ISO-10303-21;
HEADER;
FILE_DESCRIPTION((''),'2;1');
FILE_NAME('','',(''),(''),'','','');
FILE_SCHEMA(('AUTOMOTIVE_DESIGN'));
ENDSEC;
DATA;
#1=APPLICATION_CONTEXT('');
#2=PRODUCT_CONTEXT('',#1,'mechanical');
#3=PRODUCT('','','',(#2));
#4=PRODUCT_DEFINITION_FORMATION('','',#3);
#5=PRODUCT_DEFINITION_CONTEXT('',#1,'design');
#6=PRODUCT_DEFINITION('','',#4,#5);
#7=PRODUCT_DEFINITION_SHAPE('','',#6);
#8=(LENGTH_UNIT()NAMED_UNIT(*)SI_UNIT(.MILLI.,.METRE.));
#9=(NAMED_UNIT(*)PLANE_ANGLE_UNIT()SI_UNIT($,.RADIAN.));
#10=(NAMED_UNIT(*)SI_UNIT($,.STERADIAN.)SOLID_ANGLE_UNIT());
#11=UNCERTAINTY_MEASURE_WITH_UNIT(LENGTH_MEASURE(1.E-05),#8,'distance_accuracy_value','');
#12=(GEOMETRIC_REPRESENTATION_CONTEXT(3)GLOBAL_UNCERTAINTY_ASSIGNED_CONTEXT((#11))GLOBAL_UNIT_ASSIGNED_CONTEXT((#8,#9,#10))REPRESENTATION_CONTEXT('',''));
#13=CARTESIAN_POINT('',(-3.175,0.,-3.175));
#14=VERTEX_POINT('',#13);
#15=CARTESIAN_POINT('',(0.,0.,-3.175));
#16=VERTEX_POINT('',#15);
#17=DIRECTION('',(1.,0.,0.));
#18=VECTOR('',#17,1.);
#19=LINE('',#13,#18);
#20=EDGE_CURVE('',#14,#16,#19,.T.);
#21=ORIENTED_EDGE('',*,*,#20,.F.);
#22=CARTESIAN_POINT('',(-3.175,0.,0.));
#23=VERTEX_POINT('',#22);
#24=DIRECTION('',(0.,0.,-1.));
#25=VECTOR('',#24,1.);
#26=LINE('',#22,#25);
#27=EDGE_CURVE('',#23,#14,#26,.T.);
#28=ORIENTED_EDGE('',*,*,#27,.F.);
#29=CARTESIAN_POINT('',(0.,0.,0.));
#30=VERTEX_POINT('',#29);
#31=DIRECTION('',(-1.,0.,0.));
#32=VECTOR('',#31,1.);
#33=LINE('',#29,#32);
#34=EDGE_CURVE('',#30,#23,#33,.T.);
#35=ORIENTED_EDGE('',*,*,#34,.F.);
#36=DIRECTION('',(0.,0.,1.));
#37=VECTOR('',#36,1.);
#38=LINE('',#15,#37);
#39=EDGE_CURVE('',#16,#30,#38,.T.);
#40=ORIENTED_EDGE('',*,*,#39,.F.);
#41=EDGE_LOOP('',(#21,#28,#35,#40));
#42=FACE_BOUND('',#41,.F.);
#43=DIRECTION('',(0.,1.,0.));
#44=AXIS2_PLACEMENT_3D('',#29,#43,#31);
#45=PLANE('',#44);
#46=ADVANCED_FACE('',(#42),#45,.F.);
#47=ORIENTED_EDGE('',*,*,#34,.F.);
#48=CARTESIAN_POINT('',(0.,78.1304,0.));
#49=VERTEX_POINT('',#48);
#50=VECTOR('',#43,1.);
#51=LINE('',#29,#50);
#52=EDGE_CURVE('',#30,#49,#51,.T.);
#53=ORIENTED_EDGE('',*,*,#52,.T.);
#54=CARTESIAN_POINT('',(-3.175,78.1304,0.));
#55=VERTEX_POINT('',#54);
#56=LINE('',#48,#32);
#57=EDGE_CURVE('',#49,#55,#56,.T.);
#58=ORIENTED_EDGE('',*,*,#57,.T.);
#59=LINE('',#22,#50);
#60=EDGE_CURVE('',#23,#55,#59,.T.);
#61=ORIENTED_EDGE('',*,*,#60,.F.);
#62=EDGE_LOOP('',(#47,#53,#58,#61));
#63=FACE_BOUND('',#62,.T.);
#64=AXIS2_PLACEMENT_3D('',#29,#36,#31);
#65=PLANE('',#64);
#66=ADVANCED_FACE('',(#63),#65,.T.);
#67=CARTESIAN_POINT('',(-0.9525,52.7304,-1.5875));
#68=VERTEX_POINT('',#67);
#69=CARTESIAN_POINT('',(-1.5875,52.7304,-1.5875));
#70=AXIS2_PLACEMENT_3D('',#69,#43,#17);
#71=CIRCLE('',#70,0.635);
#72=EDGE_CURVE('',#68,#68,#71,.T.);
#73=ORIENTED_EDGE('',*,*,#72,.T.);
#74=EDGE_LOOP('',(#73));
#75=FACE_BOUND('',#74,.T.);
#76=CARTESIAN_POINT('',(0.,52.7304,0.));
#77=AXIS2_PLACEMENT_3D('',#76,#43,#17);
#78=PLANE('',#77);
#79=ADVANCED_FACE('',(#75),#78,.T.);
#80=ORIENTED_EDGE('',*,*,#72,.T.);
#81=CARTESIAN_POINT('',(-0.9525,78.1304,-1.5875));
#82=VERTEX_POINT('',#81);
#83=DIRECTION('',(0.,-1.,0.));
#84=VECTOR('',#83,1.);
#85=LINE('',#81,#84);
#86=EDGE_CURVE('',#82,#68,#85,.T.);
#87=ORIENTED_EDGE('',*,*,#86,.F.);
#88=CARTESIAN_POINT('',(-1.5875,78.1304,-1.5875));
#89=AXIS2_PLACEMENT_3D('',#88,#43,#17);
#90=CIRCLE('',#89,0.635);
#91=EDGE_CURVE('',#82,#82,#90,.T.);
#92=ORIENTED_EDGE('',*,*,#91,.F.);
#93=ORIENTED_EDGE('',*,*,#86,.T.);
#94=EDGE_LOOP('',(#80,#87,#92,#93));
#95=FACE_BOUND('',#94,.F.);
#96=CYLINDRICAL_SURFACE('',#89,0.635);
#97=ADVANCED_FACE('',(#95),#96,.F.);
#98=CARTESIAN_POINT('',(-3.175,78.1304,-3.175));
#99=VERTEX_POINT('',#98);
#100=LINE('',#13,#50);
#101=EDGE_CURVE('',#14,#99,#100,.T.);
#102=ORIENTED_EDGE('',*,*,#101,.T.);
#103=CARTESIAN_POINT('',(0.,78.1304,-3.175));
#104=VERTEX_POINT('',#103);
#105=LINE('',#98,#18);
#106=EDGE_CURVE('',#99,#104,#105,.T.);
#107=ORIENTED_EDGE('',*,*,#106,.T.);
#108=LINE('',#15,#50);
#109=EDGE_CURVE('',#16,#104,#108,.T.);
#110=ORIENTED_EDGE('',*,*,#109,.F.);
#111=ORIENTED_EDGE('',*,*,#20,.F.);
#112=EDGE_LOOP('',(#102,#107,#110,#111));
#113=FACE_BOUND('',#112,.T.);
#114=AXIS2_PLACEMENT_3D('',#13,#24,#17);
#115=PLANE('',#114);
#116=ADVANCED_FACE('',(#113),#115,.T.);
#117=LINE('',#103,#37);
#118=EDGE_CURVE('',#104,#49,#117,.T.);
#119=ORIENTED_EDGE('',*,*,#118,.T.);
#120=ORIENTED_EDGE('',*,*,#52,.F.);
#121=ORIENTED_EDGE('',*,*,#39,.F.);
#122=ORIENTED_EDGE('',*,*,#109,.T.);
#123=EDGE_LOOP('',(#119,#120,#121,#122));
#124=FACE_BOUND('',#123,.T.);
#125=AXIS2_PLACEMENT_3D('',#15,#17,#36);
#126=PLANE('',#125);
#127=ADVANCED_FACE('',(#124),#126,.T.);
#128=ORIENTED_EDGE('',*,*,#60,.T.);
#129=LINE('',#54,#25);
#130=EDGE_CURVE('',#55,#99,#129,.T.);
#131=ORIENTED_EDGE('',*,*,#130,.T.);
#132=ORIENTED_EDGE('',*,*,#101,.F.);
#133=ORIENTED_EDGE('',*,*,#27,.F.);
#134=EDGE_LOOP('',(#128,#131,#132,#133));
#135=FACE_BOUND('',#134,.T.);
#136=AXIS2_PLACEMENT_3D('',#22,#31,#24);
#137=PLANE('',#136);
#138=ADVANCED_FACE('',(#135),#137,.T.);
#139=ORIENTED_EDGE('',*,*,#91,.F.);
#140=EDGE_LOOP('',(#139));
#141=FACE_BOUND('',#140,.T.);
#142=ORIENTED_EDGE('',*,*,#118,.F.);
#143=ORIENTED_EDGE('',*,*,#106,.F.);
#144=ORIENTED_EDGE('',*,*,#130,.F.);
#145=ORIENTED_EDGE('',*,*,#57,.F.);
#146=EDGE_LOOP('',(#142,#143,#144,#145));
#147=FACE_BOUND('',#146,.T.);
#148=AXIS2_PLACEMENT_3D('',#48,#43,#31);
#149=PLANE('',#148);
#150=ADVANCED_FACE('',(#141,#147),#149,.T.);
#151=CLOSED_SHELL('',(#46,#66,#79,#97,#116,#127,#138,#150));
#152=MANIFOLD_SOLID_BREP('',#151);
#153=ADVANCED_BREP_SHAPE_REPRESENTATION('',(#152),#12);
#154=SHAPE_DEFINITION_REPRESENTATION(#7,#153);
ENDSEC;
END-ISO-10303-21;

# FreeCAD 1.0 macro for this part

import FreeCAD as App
import Part
import Sketcher
Q = App.Units.Quantity

doc = App.newDocument("Part")
body = doc.addObject("PartDesign::Body", "Body")

sketch1 = body.newObject("Sketcher::SketchObject", "Sketch")
sketch1.AttachmentSupport = (doc.getObject("XZ_Plane"), [""])
sketch1.MapMode = "FlatFace"
sketch1.addGeometry([
    Part.LineSegment(App.Vector(-3.2, 0, 0), App.Vector(0, 0, 0)),
    Part.LineSegment(App.Vector(0, 0, 0), App.Vector(0, -3.2, 0)),
    Part.LineSegment(App.Vector(0, -3.2, 0), App.Vector(-3.2, -3.2, 0)),
    Part.LineSegment(App.Vector(-3.2, -3.2, 0), App.Vector(-3.2, 0, 0)),
], False)
sketch1.addConstraint([
    Sketcher.Constraint("Coincident", 0, 2, 1, 1),
    Sketcher.Constraint("Coincident", 1, 2, 2, 1),
    Sketcher.Constraint("Coincident", 2, 2, 3, 1),
    Sketcher.Constraint("Coincident", 3, 2, 0, 1),
    Sketcher.Constraint("Horizontal", 0),
    Sketcher.Constraint("Vertical", 1),
    Sketcher.Constraint("Horizontal", 2),
    Sketcher.Constraint("Vertical", 3),
    Sketcher.Constraint("Coincident", 0, 2, -1, 1),
    Sketcher.Constraint("Equal", 2, 1),
    Sketcher.Constraint("DistanceX", 0, 1, 0, 2, Q("0.125 in")),
])
pad1 = body.newObject("PartDesign::Pad", "Pad")
pad1.Profile = sketch1
pad1.Length = Q("3.076 in")
pad1.Reversed = True

sketch2 = body.newObject("Sketcher::SketchObject", "Sketch001")
sketch2.AttachmentSupport = (doc.getObject("XZ_Plane"), [""])
sketch2.MapMode = "FlatFace"
sketch2.AttachmentOffset = App.Placement(App.Vector(0, 0, -3.076 * 25.4), App.Rotation())
sketch2.addGeometry(Part.Circle(App.Vector(-1.6, -1.6, 0), App.Vector(0, 0, 1), 0.6), False)
sketch2.addConstraint([
    Sketcher.Constraint("Diameter", 0, Q("0.05 in")),
    Sketcher.Constraint("DistanceX", 0, 3, -1, 1, Q("0.0625 in")),
    Sketcher.Constraint("DistanceY", 0, 3, -1, 1, Q("0.0625 in")),
])
pocket1 = body.newObject("PartDesign::Pocket", "Pocket")
pocket1.Profile = sketch2
pocket1.Length = Q("1 in")
pocket1.Reversed = True

doc.recompute()
